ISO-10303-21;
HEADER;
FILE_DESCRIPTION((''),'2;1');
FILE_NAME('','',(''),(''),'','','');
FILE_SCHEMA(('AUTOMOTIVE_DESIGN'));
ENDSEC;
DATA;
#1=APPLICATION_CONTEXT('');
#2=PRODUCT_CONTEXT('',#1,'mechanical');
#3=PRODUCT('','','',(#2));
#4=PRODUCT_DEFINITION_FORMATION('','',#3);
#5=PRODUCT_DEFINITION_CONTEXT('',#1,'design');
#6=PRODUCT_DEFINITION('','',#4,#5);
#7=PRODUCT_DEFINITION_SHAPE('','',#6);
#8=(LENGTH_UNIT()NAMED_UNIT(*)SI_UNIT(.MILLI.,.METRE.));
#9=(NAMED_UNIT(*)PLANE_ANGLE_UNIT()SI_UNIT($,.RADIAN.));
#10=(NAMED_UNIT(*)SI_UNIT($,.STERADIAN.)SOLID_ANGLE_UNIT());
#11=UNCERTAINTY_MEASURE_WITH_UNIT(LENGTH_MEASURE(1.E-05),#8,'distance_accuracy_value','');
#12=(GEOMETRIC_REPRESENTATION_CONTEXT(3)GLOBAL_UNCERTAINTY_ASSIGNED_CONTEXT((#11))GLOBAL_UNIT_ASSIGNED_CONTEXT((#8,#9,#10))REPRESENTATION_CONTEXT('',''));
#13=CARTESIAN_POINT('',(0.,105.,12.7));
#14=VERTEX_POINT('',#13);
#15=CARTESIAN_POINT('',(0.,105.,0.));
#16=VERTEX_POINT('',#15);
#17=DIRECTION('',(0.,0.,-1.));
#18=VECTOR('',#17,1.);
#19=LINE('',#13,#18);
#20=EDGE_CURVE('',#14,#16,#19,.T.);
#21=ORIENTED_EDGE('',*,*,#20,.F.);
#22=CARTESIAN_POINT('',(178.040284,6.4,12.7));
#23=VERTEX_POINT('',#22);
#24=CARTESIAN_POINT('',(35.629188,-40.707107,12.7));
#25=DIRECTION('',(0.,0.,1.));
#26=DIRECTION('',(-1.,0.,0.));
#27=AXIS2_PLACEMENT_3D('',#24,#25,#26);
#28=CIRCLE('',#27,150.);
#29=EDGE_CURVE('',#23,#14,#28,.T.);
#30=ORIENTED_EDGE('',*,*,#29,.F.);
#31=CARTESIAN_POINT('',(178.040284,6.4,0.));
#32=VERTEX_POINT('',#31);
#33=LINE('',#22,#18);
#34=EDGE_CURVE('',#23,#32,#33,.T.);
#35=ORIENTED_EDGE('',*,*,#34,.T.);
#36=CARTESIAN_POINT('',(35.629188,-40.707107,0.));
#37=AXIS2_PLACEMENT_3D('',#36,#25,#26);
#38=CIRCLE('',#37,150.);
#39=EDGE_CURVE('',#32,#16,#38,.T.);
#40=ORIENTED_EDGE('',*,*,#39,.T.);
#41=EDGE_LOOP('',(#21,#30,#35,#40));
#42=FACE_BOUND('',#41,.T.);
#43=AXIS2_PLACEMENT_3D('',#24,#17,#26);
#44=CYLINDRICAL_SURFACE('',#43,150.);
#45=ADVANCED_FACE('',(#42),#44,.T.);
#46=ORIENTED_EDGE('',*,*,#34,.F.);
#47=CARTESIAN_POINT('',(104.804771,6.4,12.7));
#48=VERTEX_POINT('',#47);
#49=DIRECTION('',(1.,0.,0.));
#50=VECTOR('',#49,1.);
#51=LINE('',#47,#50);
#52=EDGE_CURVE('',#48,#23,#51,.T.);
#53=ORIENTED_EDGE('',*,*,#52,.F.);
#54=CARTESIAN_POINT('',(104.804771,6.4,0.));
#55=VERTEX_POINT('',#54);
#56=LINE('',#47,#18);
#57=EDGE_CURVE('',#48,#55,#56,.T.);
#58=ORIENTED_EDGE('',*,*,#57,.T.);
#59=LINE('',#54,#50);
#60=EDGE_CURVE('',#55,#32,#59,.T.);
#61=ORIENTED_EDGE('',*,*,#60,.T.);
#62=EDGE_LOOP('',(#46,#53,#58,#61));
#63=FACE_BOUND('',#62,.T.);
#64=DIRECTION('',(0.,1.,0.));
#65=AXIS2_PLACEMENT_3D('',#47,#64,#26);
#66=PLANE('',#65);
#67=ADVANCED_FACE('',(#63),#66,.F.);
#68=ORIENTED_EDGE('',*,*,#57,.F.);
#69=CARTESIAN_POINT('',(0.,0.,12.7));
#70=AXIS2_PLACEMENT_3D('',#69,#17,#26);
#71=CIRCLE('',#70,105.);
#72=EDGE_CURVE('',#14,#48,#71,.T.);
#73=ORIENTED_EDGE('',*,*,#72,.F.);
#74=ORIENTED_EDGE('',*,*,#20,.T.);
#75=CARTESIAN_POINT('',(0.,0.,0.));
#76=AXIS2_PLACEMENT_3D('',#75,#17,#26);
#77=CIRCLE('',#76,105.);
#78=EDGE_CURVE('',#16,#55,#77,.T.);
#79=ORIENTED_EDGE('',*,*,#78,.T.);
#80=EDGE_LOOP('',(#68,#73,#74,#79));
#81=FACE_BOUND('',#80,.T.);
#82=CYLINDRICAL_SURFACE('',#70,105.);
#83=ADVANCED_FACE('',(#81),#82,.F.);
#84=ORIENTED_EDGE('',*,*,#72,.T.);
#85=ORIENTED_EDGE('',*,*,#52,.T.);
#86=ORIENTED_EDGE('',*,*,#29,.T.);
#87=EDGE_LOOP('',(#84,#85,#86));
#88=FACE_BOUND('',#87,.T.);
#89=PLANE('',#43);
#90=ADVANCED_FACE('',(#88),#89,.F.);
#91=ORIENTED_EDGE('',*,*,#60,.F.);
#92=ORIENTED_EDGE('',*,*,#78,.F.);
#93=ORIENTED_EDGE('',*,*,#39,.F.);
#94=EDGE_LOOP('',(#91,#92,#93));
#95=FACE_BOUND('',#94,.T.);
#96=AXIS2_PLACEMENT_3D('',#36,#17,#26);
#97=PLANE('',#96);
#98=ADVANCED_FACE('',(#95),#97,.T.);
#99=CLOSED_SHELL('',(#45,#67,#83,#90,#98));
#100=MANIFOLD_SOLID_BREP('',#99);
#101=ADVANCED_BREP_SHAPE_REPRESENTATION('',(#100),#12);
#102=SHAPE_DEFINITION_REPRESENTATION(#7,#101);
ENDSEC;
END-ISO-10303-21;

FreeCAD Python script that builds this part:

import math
import FreeCAD as App
import Part
import Sketcher
from FreeCAD import Vector

doc = App.newDocument("Part")
params = doc.addObject("Spreadsheet::Sheet", "Params")
for row, (alias, value) in enumerate([
    ("sketch1_radius", "150 mm"),
    ("sketch1_radius2", "105 mm"),
    ("pad1_length", "12.7 mm"),
], start=1):
    params.set(f"A{row}", alias)
    params.set(f"B{row}", "=" + value)
    params.setAlias(f"B{row}", alias)

body = doc.addObject("PartDesign::Body", "Body")

sketch1 = body.newObject("Sketcher::SketchObject", "Sketch")
sketch1.AttachmentSupport = (doc.getObject("XY_Plane"), [""])
sketch1.MapMode = "FlatFace"
sketch1.addGeometry([
    Part.LineSegment(Vector(104.804771, 6.4, 0), Vector(178.040284, 6.4, 0)),
    Part.ArcOfCircle(Part.Circle(Vector(35.629188, -40.707107, 0), Vector(0, 0, 1), 150), math.radians(18.303315), math.radians(103.740682)),
    Part.ArcOfCircle(Part.Circle(Vector(0, 0, 0), Vector(0, 0, 1), 105), math.radians(3.49448), math.radians(90)),
], False)
sketch1.addConstraint([
    Sketcher.Constraint("Coincident", 0, 2, 1, 1),
    Sketcher.Constraint("Coincident", 1, 2, 2, 2),
    Sketcher.Constraint("Coincident", 2, 1, 0, 1),
    Sketcher.Constraint("Horizontal", 0),
    Sketcher.Constraint("Coincident", 2, 3, -1, 1),
    Sketcher.Constraint("PointOnObject", 1, 2, -2),
    Sketcher.Constraint("Radius", 1, 150.0),
    Sketcher.Constraint("Radius", 2, 105.0),
    Sketcher.Constraint("DistanceY", -1, 1, 0, 2, 6.4),
    Sketcher.Constraint("DistanceX", 0, 1, 0, 2, 73.235514),
])
sketch1.setExpression("Constraints[6]", "Params.sketch1_radius")
sketch1.setExpression("Constraints[7]", "Params.sketch1_radius2")
pad1 = body.newObject("PartDesign::Pad", "Pad")
pad1.Profile = sketch1
pad1.setExpression("Length", "Params.pad1_length")

doc.recompute()
